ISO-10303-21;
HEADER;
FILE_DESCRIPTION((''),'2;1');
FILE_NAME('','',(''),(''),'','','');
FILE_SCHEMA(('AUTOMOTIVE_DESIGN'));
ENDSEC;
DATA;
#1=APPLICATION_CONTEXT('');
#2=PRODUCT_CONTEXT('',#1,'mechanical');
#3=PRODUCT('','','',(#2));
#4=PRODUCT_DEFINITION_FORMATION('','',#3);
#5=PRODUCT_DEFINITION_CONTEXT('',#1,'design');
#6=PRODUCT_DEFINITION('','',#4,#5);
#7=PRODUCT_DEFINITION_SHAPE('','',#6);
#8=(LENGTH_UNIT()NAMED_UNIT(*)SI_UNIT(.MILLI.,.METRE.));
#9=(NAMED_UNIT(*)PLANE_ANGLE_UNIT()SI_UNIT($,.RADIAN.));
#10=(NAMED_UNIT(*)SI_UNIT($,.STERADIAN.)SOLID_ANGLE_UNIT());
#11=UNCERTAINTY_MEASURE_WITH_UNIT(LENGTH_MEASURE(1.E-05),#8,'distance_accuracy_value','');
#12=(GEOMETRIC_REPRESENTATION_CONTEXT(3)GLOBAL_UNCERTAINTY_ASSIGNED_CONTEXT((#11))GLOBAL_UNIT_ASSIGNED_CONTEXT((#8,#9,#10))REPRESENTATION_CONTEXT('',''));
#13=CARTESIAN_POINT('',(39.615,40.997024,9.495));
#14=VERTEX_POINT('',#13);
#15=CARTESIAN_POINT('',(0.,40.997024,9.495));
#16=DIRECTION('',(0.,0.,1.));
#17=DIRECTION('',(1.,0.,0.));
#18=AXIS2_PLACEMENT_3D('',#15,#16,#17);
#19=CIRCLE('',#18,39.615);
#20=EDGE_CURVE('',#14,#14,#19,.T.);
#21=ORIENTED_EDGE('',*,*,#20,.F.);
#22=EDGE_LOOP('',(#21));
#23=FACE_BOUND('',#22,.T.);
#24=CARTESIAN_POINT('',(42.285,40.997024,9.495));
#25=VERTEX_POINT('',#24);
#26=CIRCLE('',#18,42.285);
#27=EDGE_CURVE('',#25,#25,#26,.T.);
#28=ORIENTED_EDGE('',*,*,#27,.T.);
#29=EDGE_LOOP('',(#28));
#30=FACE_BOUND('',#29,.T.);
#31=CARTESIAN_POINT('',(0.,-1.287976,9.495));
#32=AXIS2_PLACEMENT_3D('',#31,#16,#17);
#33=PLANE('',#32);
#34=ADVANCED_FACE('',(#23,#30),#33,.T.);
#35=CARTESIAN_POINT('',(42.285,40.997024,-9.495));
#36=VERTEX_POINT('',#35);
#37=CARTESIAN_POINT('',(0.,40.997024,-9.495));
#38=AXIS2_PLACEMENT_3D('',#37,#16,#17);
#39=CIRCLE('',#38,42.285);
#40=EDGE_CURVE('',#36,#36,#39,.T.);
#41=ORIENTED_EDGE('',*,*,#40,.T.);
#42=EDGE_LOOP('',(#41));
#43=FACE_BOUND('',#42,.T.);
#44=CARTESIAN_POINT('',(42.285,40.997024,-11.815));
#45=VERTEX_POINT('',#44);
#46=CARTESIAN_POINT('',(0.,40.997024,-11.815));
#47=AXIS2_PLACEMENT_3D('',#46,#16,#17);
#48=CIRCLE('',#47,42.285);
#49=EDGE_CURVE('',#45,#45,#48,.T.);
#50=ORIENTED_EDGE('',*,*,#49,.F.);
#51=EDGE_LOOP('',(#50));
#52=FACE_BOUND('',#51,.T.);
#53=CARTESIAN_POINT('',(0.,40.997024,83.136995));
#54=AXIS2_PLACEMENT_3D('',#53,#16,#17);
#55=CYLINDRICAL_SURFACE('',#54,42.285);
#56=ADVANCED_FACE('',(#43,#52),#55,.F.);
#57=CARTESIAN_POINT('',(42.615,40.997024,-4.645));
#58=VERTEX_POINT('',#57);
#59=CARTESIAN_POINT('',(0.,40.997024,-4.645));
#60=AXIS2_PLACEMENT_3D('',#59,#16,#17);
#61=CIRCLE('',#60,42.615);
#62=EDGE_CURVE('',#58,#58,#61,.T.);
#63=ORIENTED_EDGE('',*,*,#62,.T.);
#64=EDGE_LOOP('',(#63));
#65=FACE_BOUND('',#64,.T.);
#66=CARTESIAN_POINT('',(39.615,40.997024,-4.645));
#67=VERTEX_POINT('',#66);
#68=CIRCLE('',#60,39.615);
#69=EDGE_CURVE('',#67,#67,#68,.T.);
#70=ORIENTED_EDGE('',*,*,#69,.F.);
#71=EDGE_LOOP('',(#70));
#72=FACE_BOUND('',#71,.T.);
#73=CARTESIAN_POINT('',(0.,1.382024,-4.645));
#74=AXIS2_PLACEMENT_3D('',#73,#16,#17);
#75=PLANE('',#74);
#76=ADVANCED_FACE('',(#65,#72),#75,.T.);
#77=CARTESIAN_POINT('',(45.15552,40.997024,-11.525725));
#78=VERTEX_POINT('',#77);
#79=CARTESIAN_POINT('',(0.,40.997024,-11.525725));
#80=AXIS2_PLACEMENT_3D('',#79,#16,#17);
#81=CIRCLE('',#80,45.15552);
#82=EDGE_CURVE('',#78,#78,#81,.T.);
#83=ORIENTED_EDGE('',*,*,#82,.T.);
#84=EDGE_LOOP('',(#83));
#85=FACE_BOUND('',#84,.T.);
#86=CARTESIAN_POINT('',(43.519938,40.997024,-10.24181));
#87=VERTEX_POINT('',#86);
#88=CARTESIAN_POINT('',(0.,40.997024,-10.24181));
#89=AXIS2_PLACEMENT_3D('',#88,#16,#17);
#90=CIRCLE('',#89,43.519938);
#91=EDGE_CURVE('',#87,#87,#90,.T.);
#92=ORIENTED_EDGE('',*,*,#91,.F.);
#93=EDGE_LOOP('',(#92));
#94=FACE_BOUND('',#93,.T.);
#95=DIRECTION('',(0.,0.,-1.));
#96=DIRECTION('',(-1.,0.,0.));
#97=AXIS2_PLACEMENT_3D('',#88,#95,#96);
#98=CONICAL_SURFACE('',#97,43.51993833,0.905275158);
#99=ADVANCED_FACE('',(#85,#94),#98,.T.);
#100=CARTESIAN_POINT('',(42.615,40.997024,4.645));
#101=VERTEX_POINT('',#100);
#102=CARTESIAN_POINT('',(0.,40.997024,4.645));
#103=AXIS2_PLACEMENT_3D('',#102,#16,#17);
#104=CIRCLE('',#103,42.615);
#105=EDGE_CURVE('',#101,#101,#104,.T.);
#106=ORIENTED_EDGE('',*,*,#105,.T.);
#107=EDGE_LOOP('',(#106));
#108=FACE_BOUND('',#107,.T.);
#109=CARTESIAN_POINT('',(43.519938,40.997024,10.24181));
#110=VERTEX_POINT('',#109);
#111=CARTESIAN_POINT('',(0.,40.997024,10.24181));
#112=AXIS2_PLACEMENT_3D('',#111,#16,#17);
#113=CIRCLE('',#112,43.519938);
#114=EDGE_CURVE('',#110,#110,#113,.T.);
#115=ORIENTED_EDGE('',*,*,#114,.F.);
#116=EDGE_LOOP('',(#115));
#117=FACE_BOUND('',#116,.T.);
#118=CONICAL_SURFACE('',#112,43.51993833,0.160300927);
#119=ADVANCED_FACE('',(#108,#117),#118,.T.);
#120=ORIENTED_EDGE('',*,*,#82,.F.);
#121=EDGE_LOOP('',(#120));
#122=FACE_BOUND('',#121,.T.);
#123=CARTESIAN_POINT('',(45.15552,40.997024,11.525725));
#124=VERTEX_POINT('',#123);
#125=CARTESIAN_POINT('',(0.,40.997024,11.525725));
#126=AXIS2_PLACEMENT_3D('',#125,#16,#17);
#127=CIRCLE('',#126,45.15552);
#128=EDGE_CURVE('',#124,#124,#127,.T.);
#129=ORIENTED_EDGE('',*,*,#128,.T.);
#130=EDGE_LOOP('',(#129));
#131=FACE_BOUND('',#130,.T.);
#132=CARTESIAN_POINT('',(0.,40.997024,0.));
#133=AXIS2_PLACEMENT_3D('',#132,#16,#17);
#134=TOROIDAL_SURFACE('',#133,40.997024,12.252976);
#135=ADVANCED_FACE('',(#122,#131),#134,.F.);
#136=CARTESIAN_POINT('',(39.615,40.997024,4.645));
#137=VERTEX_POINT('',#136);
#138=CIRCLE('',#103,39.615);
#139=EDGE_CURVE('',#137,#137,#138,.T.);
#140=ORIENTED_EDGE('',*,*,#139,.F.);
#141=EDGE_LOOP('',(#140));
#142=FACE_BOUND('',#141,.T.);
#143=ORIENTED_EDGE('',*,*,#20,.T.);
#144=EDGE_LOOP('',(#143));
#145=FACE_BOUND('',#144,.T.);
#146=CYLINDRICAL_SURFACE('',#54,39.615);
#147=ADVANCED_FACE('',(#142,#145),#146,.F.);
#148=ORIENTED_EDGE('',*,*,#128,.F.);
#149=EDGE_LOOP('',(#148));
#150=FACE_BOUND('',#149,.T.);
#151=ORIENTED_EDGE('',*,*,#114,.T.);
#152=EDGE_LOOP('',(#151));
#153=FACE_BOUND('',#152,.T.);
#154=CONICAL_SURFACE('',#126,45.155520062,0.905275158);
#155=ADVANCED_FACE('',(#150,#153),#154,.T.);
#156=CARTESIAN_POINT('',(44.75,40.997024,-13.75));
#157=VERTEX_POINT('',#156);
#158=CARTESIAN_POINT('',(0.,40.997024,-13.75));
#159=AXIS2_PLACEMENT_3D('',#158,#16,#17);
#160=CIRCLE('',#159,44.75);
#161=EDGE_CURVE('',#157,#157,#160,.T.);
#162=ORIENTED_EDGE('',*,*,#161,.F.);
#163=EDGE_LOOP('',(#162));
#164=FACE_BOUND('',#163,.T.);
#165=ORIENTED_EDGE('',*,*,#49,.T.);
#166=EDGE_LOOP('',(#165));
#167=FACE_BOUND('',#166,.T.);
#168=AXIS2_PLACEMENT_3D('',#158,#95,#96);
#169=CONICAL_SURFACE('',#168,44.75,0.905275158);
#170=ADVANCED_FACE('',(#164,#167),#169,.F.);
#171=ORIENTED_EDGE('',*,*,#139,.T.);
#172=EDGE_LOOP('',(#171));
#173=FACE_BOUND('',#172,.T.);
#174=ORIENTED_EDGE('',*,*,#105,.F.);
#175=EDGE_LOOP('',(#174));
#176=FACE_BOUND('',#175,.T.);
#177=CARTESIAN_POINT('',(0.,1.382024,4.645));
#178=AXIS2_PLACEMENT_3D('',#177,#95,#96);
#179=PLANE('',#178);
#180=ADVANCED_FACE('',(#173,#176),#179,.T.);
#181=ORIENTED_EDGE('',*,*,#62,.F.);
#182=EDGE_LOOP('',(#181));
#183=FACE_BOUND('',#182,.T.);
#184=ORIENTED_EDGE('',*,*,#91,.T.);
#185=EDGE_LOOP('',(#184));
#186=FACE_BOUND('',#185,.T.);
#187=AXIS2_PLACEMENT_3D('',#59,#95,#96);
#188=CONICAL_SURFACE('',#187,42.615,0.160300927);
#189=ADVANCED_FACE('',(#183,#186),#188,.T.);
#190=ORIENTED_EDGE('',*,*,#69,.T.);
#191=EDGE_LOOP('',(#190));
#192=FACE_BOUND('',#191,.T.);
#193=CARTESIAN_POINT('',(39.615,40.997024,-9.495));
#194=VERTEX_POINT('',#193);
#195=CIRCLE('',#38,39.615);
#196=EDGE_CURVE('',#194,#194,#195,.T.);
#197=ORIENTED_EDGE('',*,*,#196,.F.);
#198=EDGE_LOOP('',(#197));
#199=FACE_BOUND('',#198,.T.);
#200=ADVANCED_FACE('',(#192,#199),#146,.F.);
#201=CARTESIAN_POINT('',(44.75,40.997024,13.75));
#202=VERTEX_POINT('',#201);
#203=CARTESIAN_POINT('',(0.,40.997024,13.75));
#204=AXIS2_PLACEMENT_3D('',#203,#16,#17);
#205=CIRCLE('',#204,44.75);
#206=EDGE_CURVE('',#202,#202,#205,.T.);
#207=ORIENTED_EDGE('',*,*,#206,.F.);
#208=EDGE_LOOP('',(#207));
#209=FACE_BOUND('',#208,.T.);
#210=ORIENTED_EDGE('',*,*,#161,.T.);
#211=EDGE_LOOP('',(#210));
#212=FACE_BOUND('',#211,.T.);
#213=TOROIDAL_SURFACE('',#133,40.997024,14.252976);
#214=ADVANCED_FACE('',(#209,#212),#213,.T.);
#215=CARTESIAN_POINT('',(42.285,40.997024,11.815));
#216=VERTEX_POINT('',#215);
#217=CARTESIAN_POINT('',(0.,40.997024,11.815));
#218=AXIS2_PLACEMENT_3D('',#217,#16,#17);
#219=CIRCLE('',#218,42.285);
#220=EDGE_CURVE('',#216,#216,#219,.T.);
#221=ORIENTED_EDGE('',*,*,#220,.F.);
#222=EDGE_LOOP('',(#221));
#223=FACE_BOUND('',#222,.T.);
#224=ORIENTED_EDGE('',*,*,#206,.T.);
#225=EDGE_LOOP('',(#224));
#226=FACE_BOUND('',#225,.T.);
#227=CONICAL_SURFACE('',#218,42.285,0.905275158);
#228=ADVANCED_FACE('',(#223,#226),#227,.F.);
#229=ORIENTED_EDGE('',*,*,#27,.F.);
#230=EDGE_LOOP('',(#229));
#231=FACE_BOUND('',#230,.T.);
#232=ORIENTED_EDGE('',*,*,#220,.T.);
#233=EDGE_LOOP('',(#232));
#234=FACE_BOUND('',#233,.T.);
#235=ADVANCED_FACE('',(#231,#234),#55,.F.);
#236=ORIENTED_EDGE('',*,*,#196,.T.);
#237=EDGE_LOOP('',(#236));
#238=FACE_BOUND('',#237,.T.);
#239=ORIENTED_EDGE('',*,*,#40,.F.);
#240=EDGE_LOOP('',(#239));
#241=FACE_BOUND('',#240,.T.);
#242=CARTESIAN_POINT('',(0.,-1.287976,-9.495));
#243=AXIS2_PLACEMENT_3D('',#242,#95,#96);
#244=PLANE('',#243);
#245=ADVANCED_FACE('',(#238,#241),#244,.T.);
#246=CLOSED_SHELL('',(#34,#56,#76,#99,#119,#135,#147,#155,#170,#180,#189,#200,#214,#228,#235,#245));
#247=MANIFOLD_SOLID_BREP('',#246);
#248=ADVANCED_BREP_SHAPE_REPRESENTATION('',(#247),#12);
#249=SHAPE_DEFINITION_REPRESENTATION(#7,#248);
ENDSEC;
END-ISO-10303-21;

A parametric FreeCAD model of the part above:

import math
import FreeCAD as App
import Part
import Sketcher

V = App.Vector

doc = App.newDocument("Part")
body = doc.addObject("PartDesign::Body", "Body")

# Sketch on YZ plane
sketch1 = body.newObject("Sketcher::SketchObject", "Sketch")
sketch1.AttachmentSupport = (doc.getObject("YZ_Plane"), [""])
sketch1.MapMode = "FlatFace"
sketch1.addGeometry(Part.LineSegment(V(-1.3, 11.8, 0), V(-3.8, 13.8, 0)), False)
sketch1.addGeometry(Part.ArcOfCircle(Part.Circle(V(0, 0, 0), V(0, 0, 1), 14.3), math.radians(105), math.radians(180)), False)
sketch1.addGeometry(Part.ArcOfCircle(Part.Circle(V(0, 0, 0), V(0, 0, 1), 14.3), math.radians(180), math.radians(255)), False)
sketch1.addGeometry(Part.LineSegment(V(-3.8, -13.8, 0), V(-1.3, -11.8, 0)), False)
sketch1.addGeometry(Part.LineSegment(V(-1.3, -11.8, 0), V(-1.3, -9.5, 0)), False)
sketch1.addGeometry(Part.LineSegment(V(-1.3, -9.5, 0), V(1.4, -9.5, 0)), False)
sketch1.addGeometry(Part.LineSegment(V(1.4, -9.5, 0), V(1.4, -4.6, 0)), False)
sketch1.addGeometry(Part.LineSegment(V(1.4, -4.6, 0), V(-1.6, -4.6, 0)), False)
sketch1.addGeometry(Part.LineSegment(V(-1.6, -4.6, 0), V(-2.5, -10.2, 0)), False)
sketch1.addGeometry(Part.LineSegment(V(-2.5, -10.2, 0), V(-4.2, -11.5, 0)), False)
sketch1.addGeometry(Part.ArcOfCircle(Part.Circle(V(0, 0, 0), V(0, 0, 1), 12.3), math.radians(180), math.radians(250)), False)
sketch1.addGeometry(Part.ArcOfCircle(Part.Circle(V(0, 0, 0), V(0, 0, 1), 12.3), math.radians(110), math.radians(180)), False)
sketch1.addGeometry(Part.LineSegment(V(-4.2, 11.5, 0), V(-2.5, 10.2, 0)), False)
sketch1.addGeometry(Part.LineSegment(V(-2.5, 10.2, 0), V(-1.6, 4.6, 0)), False)
sketch1.addGeometry(Part.LineSegment(V(-1.6, 4.6, 0), V(1.4, 4.6, 0)), False)
sketch1.addGeometry(Part.LineSegment(V(1.4, 4.6, 0), V(1.4, 9.5, 0)), False)
sketch1.addGeometry(Part.LineSegment(V(1.4, 9.5, 0), V(-1.3, 9.5, 0)), False)
sketch1.addGeometry(Part.LineSegment(V(-1.3, 9.5, 0), V(-1.3, 11.8, 0)), False)
sketch1.addGeometry(Part.LineSegment(V(41, 13.8, 0), V(41, -13.8, 0)), True)  # axis
sketch1.addConstraint(Sketcher.Constraint("Coincident", 0, 2, 1, 1))
sketch1.addConstraint(Sketcher.Constraint("Tangent", 1, 2, 2, 1))
sketch1.addConstraint(Sketcher.Constraint("Coincident", 2, 2, 3, 1))
sketch1.addConstraint(Sketcher.Constraint("Coincident", 3, 2, 4, 1))
sketch1.addConstraint(Sketcher.Constraint("Coincident", 4, 2, 5, 1))
sketch1.addConstraint(Sketcher.Constraint("Coincident", 5, 2, 6, 1))
sketch1.addConstraint(Sketcher.Constraint("Coincident", 6, 2, 7, 1))
sketch1.addConstraint(Sketcher.Constraint("Coincident", 7, 2, 8, 1))
sketch1.addConstraint(Sketcher.Constraint("Coincident", 8, 2, 9, 1))
sketch1.addConstraint(Sketcher.Constraint("Coincident", 9, 2, 10, 2))
sketch1.addConstraint(Sketcher.Constraint("Tangent", 10, 1, 11, 2))
sketch1.addConstraint(Sketcher.Constraint("Coincident", 11, 1, 12, 1))
sketch1.addConstraint(Sketcher.Constraint("Coincident", 12, 2, 13, 1))
sketch1.addConstraint(Sketcher.Constraint("Coincident", 13, 2, 14, 1))
sketch1.addConstraint(Sketcher.Constraint("Coincident", 14, 2, 15, 1))
sketch1.addConstraint(Sketcher.Constraint("Coincident", 15, 2, 16, 1))
sketch1.addConstraint(Sketcher.Constraint("Coincident", 16, 2, 17, 1))
sketch1.addConstraint(Sketcher.Constraint("Coincident", 17, 2, 0, 1))
sketch1.addConstraint(Sketcher.Constraint("Vertical", 4))
sketch1.addConstraint(Sketcher.Constraint("Horizontal", 5))
sketch1.addConstraint(Sketcher.Constraint("Vertical", 6))
sketch1.addConstraint(Sketcher.Constraint("Horizontal", 7))
sketch1.addConstraint(Sketcher.Constraint("Horizontal", 14))
sketch1.addConstraint(Sketcher.Constraint("Vertical", 15))
sketch1.addConstraint(Sketcher.Constraint("Horizontal", 16))
sketch1.addConstraint(Sketcher.Constraint("Vertical", 17))
sketch1.addConstraint(Sketcher.Constraint("Vertical", 18))
sketch1.addConstraint(Sketcher.Constraint("Coincident", 1, 3, -1, 1))
sketch1.addConstraint(Sketcher.Constraint("Coincident", 10, 3, -1, 1))
sketch1.addConstraint(Sketcher.Constraint("Equal", 1, 2))
sketch1.addConstraint(Sketcher.Constraint("Equal", 10, 11))
sketch1.addConstraint(Sketcher.Constraint("Symmetric", 8, 2, 12, 2, -1))
sketch1.addConstraint(Sketcher.Constraint("Symmetric", 7, 2, 13, 2, -1))
sketch1.addConstraint(Sketcher.Constraint("Symmetric", 5, 2, 15, 2, -1))
sketch1.addConstraint(Sketcher.Constraint("Symmetric", 3, 2, 17, 2, -1))
sketch1.addConstraint(Sketcher.Constraint("PointOnObject", 1, 2, -1))
sketch1.addConstraint(Sketcher.Constraint("PointOnObject", 10, 1, -1))
sketch1.addConstraint(Sketcher.Constraint("Parallel", 3, 9))
sketch1.addConstraint(Sketcher.Constraint("Parallel", 0, 12))
sketch1.addConstraint(Sketcher.Constraint("Horizontal", 0, 2, 18, 1))
sketch1.addConstraint(Sketcher.Constraint("Horizontal", 2, 2, 18, 2))
sketch1.addConstraint(Sketcher.Constraint("Vertical", 0, 2, 2, 2))
sketch1.addConstraint(Sketcher.Constraint("DistanceX", 7, 2, 7, 1, 3.0))
sketch1.addConstraint(Sketcher.Constraint("DistanceY", 18, 2, 18, 1, 27.5))
sketch1.addConstraint(Sketcher.Constraint("DistanceX", 1, 2, 10, 1, 2.0))
sketch1.addConstraint(Sketcher.Constraint("DistanceX", 5, 1, 5, 2, 2.67))
sketch1.addConstraint(Sketcher.Constraint("DistanceY", 4, 1, 4, 2, 2.32))
sketch1.addConstraint(Sketcher.Constraint("DistanceY", 6, 1, 6, 2, 4.85))
sketch1.addConstraint(Sketcher.Constraint("DistanceX", 1, 2, 0, 2, 10.5))
sketch1.addConstraint(Sketcher.Constraint("DistanceY", 3, 2, -1, 1, 11.815))
sketch1.addConstraint(Sketcher.Constraint("DistanceX", 2, 2, 3, 2, 2.465))
sketch1.addConstraint(Sketcher.Constraint("DistanceX", 15, 2, 18, 1, 39.615))
sketch1.addConstraint(Sketcher.Constraint("Distance", 9, 2.079319))
sketch1.addConstraint(Sketcher.Constraint("DistanceY", 8, 2, -1, 1, 10.24181))
revolution = body.newObject("PartDesign::Revolution", "Revolution")
revolution.Profile = sketch1
revolution.ReferenceAxis = (sketch1, ["Axis0"])
revolution.Angle = 360

doc.recompute()
